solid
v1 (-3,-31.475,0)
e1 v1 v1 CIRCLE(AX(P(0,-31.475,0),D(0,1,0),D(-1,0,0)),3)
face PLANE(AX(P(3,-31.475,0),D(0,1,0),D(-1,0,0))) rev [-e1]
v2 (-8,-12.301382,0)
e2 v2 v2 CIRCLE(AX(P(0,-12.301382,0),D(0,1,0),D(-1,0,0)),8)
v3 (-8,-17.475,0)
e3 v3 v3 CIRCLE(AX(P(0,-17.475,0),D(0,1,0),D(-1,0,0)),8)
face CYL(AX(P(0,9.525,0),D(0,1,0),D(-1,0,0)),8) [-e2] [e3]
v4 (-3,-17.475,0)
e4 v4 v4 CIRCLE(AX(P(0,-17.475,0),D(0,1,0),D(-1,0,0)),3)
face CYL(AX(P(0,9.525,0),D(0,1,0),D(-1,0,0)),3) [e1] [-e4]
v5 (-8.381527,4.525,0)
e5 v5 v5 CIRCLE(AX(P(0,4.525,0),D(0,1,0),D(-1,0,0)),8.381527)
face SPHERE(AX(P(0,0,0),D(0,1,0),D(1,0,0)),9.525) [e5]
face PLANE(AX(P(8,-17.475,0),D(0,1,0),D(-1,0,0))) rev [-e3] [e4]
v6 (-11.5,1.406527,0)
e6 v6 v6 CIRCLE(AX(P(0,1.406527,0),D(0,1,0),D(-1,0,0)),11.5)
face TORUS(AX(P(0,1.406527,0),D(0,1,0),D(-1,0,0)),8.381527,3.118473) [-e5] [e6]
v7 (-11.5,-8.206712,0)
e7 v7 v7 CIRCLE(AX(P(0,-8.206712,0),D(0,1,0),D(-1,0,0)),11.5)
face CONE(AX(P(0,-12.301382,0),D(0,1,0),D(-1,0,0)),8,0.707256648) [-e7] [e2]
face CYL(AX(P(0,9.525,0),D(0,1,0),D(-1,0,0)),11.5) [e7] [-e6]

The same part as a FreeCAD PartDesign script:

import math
import FreeCAD as App
import Part
import Sketcher

doc = App.newDocument("Part")
body = doc.addObject("PartDesign::Body", "Body")

sketch1 = doc.addObject("Sketcher::SketchObject", "Sketch")
body.addObject(sketch1)
sketch1.AttachmentSupport = (doc.XY_Plane, [""])
sketch1.MapMode = "FlatFace"
sketch1.addGeometry([
    Part.LineSegment(App.Vector(11.5, -8.2, 0), App.Vector(11.5, 1.4, 0)),
    Part.ArcOfCircle(Part.Circle(App.Vector(8.4, 1.4, 0), App.Vector(0, 0, 1), 3.1), math.radians(0), math.radians(90)),
    Part.ArcOfCircle(Part.Circle(App.Vector(0, 0, 0), App.Vector(0, 0, 1), 9.5), math.radians(28), math.radians(90)),
    Part.LineSegment(App.Vector(0, 9.5, 0), App.Vector(0, -31.5, 0)),
    Part.LineSegment(App.Vector(0, -31.5, 0), App.Vector(3, -31.5, 0)),
    Part.LineSegment(App.Vector(3, -31.5, 0), App.Vector(3, -17.5, 0)),
    Part.LineSegment(App.Vector(3, -17.5, 0), App.Vector(8, -17.5, 0)),
    Part.LineSegment(App.Vector(8, -17.5, 0), App.Vector(8, -12.3, 0)),
    Part.LineSegment(App.Vector(8, -12.3, 0), App.Vector(11.5, -8.2, 0)),
], False)
sketch1.addConstraint([
    Sketcher.Constraint("Tangent", 0, 2, 1, 1),
    Sketcher.Constraint("Coincident", 1, 2, 2, 1),
    Sketcher.Constraint("Coincident", 2, 2, 3, 1),
    Sketcher.Constraint("Coincident", 3, 2, 4, 1),
    Sketcher.Constraint("Coincident", 4, 2, 5, 1),
    Sketcher.Constraint("Coincident", 5, 2, 6, 1),
    Sketcher.Constraint("Coincident", 6, 2, 7, 1),
    Sketcher.Constraint("Coincident", 7, 2, 8, 1),
    Sketcher.Constraint("Coincident", 8, 2, 0, 1),
    Sketcher.Constraint("Vertical", 0),
    Sketcher.Constraint("Vertical", 3),
    Sketcher.Constraint("Horizontal", 4),
    Sketcher.Constraint("Vertical", 5),
    Sketcher.Constraint("Horizontal", 6),
    Sketcher.Constraint("Vertical", 7),
    Sketcher.Constraint("Coincident", 2, 3, -1, 1),
    Sketcher.Constraint("PointOnObject", 2, 2, -2),
    Sketcher.Constraint("DistanceX", 4, 1, 4, 2, 3.0),
    Sketcher.Constraint("DistanceX", 6, 1, 6, 2, 5.0),
    Sketcher.Constraint("DistanceY", 3, 2, 3, 1, 41.0),
    Sketcher.Constraint("DistanceY", 5, 1, 5, 2, 14.0),
    Sketcher.Constraint("Radius", 2, 9.525),
    Sketcher.Constraint("DistanceY", 1, 2, 2, 2, 5.0),
    Sketcher.Constraint("DistanceX", -1, 1, 0, 2, 11.5),
    Sketcher.Constraint("Radius", 1, 3.118473),
    Sketcher.Constraint("DistanceY", 0, 1, 0, 2, 9.613239),
    Sketcher.Constraint("DistanceY", 7, 1, 7, 2, 5.173618),
])
revolution = doc.addObject("PartDesign::Revolution", "Revolution")
body.addObject(revolution)
revolution.Profile = sketch1
revolution.ReferenceAxis = (sketch1, ["V_Axis"])
revolution.Angle = 360

doc.recompute()
